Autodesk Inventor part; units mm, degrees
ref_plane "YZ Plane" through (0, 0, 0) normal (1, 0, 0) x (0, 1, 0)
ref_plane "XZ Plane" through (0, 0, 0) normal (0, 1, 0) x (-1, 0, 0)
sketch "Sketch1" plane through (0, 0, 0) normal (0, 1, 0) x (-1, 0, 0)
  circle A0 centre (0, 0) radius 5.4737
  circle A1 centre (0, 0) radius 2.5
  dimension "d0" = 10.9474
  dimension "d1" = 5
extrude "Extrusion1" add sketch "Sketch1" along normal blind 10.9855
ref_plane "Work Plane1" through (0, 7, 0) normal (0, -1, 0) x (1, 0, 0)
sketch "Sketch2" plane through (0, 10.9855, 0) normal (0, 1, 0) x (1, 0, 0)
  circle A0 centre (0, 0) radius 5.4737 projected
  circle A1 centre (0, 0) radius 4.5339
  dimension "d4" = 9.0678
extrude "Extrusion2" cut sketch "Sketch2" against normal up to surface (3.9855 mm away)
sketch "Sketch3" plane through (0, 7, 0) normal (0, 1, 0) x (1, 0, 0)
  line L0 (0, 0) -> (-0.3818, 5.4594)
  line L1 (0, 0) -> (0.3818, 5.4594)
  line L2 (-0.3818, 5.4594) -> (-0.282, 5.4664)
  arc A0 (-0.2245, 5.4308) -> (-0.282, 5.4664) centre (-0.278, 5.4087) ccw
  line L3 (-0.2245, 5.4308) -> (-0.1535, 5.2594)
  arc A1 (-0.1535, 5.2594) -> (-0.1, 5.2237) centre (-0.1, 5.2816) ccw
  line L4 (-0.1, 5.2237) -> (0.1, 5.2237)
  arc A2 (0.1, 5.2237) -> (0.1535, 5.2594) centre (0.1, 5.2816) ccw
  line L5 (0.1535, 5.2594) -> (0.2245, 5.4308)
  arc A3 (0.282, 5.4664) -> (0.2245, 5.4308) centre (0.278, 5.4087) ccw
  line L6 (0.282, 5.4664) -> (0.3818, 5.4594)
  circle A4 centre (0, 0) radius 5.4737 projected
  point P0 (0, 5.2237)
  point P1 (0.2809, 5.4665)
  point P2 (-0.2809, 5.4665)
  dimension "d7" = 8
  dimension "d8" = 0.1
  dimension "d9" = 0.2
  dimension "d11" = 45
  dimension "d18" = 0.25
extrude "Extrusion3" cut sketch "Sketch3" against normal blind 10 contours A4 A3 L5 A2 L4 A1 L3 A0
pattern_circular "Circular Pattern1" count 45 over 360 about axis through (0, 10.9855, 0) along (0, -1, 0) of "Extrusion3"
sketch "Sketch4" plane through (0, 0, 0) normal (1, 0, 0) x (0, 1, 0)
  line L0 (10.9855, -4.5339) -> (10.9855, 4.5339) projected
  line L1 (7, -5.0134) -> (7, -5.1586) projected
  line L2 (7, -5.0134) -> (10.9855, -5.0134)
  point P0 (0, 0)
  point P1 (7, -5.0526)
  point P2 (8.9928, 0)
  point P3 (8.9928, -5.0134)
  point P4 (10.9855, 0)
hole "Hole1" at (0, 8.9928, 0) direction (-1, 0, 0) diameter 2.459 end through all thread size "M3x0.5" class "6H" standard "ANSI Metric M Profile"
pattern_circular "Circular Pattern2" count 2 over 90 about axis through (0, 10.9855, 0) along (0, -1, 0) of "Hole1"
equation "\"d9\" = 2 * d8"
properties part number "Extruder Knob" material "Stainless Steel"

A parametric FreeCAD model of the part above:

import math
import FreeCAD as App
import Part
import Sketcher
Q = App.Units.Quantity

doc = App.newDocument("Part")
body = doc.addObject("PartDesign::Body", "Body")

# Sketch on XZ plane
sketch1 = body.newObject("Sketcher::SketchObject", "Sketch")
sketch1.AttachmentSupport = (doc.getObject("XZ_Plane"), [""])
sketch1.MapMode = "FlatFace"
sketch1.addGeometry(Part.Circle(App.Vector(0, 0, 0), App.Vector(0, 0, 1), 5.5), False)
sketch1.addGeometry(Part.Circle(App.Vector(0, 0, 0), App.Vector(0, 0, 1), 2.5), False)
sketch1.addConstraint(Sketcher.Constraint("Coincident", 0, 3, -1, 1))
sketch1.addConstraint(Sketcher.Constraint("Coincident", 1, 3, -1, 1))
sketch1.addConstraint(Sketcher.Constraint("Diameter", 1, Q("5 mm")))
sketch1.addConstraint(Sketcher.Constraint("Diameter", 0, Q("10.9474 mm")))
pad1 = body.newObject("PartDesign::Pad", "Pad")
pad1.Profile = sketch1
pad1.Length = 10.9855
pad1.Reversed = True

# Sketch on XZ plane
sketch2 = body.newObject("Sketcher::SketchObject", "Sketch001")
sketch2.AttachmentSupport = (doc.getObject("XZ_Plane"), [""])
sketch2.MapMode = "FlatFace"
sketch2.AttachmentOffset = App.Placement(App.Vector(0, 0, -10.9855), App.Rotation())
sketch2.addGeometry(Part.Circle(App.Vector(0, 0, 0), App.Vector(0, 0, 1), 5.5), False)
sketch2.addGeometry(Part.Circle(App.Vector(0, 0, 0), App.Vector(0, 0, 1), 4.5), False)
sketch2.addConstraint(Sketcher.Constraint("Coincident", 0, 3, -1, 1))
sketch2.addConstraint(Sketcher.Constraint("Coincident", 1, 3, -1, 1))
sketch2.addConstraint(Sketcher.Constraint("Diameter", 1, Q("9.0678 mm")))
sketch2.addConstraint(Sketcher.Constraint("Diameter", 0, Q("10.9474 mm")))
pocket1 = body.newObject("PartDesign::Pocket", "Pocket")
pocket1.Profile = sketch2
pocket1.Length = 3.9855
pocket1.Reversed = True

# Sketch on XZ plane
sketch3 = body.newObject("Sketcher::SketchObject", "Sketch002")
sketch3.AttachmentSupport = (doc.getObject("XZ_Plane"), [""])
sketch3.MapMode = "FlatFace"
sketch3.AttachmentOffset = App.Placement(App.Vector(0, 0, -7), App.Rotation())
sketch3.addGeometry(Part.ArcOfCircle(Part.Circle(App.Vector(0, 0, 0), App.Vector(0, 0, 1), 5.47), math.radians(-92.95), math.radians(-87.05)), False)
sketch3.addGeometry(Part.ArcOfCircle(Part.Circle(App.Vector(-0.28, -5.41, 0), App.Vector(0, 0, 1), 0.06), math.radians(-94), math.radians(-22)), False)
sketch3.addGeometry(Part.LineSegment(App.Vector(-0.22, -5.43, 0), App.Vector(-0.15, -5.26, 0)), False)
sketch3.addGeometry(Part.ArcOfCircle(Part.Circle(App.Vector(-0.1, -5.28, 0), App.Vector(0, 0, 1), 0.06), math.radians(90), math.radians(157)), False)
sketch3.addGeometry(Part.LineSegment(App.Vector(-0.1, -5.22, 0), App.Vector(0.1, -5.22, 0)), False)
sketch3.addGeometry(Part.ArcOfCircle(Part.Circle(App.Vector(0.1, -5.28, 0), App.Vector(0, 0, 1), 0.06), math.radians(23), math.radians(90)), False)
sketch3.addGeometry(Part.LineSegment(App.Vector(0.15, -5.26, 0), App.Vector(0.22, -5.43, 0)), False)
sketch3.addGeometry(Part.ArcOfCircle(Part.Circle(App.Vector(0.28, -5.41, 0), App.Vector(0, 0, 1), 0.06), math.radians(-158), math.radians(-86)), False)
sketch3.addConstraint(Sketcher.Constraint("Coincident", 0, 1, 1, 1))
sketch3.addConstraint(Sketcher.Constraint("Coincident", 1, 2, 2, 1))
sketch3.addConstraint(Sketcher.Constraint("Coincident", 2, 2, 3, 2))
sketch3.addConstraint(Sketcher.Constraint("Tangent", 3, 1, 4, 1))
sketch3.addConstraint(Sketcher.Constraint("Tangent", 4, 2, 5, 2))
sketch3.addConstraint(Sketcher.Constraint("Coincident", 5, 1, 6, 1))
sketch3.addConstraint(Sketcher.Constraint("Coincident", 6, 2, 7, 1))
sketch3.addConstraint(Sketcher.Constraint("Coincident", 7, 2, 0, 2))
sketch3.addConstraint(Sketcher.Constraint("Horizontal", 4))
sketch3.addConstraint(Sketcher.Constraint("Coincident", 0, 3, -1, 1))
sketch3.addConstraint(Sketcher.Constraint("Equal", 1, 3))
sketch3.addConstraint(Sketcher.Constraint("Equal", 3, 5))
sketch3.addConstraint(Sketcher.Constraint("Equal", 5, 7))
sketch3.addConstraint(Sketcher.Constraint("Symmetric", 2, 2, 5, 1, -2))
sketch3.addConstraint(Sketcher.Constraint("Symmetric", 1, 2, 6, 2, -2))
sketch3.addConstraint(Sketcher.Constraint("Horizontal", 0, 1, 7, 2))
sketch3.addConstraint(Sketcher.Constraint("DistanceX", 4, 1, 4, 2, Q("0.2 mm")))
sketch3.addConstraint(Sketcher.Constraint("Angle", 2, Q("67.499 deg")))
sketch3.addConstraint(Sketcher.Constraint("Radius", 1, Q("0.058 mm")))
sketch3.addConstraint(Sketcher.Constraint("Radius", 0, Q("5.4737 mm")))
sketch3.addConstraint(Sketcher.Constraint("DistanceX", 0, 1, 7, 3, Q("0.56 mm")))
sketch3.addConstraint(Sketcher.Constraint("DistanceX", 1, 3, -1, 1, Q("0.278 mm")))
sketch3.addConstraint(Sketcher.Constraint("DistanceY", 1, 2, 1, 3, Q("0.022 mm")))
sketch3.addConstraint(Sketcher.Constraint("DistanceX", 1, 2, 2, 2, Q("0.071 mm")))
pocket2 = body.newObject("PartDesign::Pocket", "Pocket001")
pocket2.Profile = sketch3
pocket2.Length = 10
pocket2.Reversed = True
doc.recompute()

polarpattern = body.newObject("PartDesign::PolarPattern", "PolarPattern")
polarpattern.Originals = [pocket2]
polarpattern.Axis = (doc.getObject("Y_Axis"), [""])
polarpattern.Angle = 360
polarpattern.Occurrences = 45
body.Tip = polarpattern

# Sketch on YZ plane
sketch4 = body.newObject("Sketcher::SketchObject", "Sketch003")
sketch4.AttachmentSupport = (doc.getObject("YZ_Plane"), [""])
sketch4.MapMode = "FlatFace"
sketch4.addGeometry(Part.Circle(App.Vector(9, 0, 0), App.Vector(0, 0, 1), 1.2), False)
sketch4.addConstraint(Sketcher.Constraint("PointOnObject", 0, 3, -1))
sketch4.addConstraint(Sketcher.Constraint("Diameter", 0, Q("2.459 mm")))
sketch4.addConstraint(Sketcher.Constraint("DistanceX", -1, 1, 0, 3, Q("8.9928 mm")))
doc.recompute()
hole = body.newObject("PartDesign::Hole", "Hole")
hole.Profile = sketch4
hole.ThreadType = "None"
hole.Diameter = 2.459
hole.DepthType = "ThroughAll"
doc.recompute()

polarpattern2 = body.newObject("PartDesign::PolarPattern", "PolarPattern001")
polarpattern2.Originals = [hole]
polarpattern2.Axis = (doc.getObject("Y_Axis"), [""])
polarpattern2.Angle = 90
polarpattern2.Occurrences = 2
polarpattern2.Reversed = True
body.Tip = polarpattern2

doc.recompute()
